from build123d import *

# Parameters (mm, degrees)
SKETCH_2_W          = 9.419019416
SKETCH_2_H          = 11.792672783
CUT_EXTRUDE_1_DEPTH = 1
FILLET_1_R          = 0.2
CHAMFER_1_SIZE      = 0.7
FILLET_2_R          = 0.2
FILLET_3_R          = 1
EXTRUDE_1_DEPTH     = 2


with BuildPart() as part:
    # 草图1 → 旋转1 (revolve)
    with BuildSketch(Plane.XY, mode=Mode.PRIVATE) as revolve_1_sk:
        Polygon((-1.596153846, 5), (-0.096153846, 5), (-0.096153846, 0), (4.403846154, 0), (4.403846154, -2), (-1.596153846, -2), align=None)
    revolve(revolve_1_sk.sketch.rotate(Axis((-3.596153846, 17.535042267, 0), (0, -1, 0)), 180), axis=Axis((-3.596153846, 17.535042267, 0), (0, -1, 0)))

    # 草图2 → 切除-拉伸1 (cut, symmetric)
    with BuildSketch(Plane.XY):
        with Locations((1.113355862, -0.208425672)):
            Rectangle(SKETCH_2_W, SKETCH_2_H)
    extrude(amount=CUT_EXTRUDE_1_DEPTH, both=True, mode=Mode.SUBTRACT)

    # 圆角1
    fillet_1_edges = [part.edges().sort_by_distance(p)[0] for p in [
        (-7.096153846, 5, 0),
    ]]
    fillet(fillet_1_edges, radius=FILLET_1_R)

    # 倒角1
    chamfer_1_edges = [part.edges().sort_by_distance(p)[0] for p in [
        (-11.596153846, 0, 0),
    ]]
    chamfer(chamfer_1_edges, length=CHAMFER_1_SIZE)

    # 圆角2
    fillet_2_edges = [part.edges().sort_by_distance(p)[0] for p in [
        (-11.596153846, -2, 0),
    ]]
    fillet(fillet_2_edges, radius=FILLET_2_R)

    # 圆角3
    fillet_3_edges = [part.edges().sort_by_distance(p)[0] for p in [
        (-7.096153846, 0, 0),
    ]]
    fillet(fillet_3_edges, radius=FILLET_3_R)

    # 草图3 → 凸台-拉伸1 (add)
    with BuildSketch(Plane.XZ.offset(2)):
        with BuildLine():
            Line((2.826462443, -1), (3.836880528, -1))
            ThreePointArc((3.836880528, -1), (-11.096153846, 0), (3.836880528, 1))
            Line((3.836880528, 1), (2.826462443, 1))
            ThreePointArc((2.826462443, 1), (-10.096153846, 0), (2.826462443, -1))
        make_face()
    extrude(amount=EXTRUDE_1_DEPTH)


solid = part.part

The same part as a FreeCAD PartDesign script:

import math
import FreeCAD as App
import Part
import Sketcher

V = App.Vector


def edges_at(feature, points):
    """Names of the edges that pass closest to the given points."""
    edges = feature.Shape.Edges
    near = lambda p: min(range(len(edges)), key=lambda i: edges[i].distToShape(Part.Vertex(*p))[0])
    return sorted({f"Edge{near(p) + 1}" for p in points})


def add_polygon(sketch, points):
    """Adds a closed chain of lines whose ends are joined by coincident constraints."""
    first, n = sketch.GeometryCount, len(points)
    for a, b in zip(points, points[1:] + points[:1]):
        sketch.addGeometry(Part.LineSegment(App.Vector(*a, 0), App.Vector(*b, 0)), False)
    for i in range(n):
        sketch.addConstraint(Sketcher.Constraint("Coincident", first + i, 2, first + (i + 1) % n, 1))

doc = App.newDocument("Part")
body = doc.addObject("PartDesign::Body", "Body")

# Sketch on XY plane
sketch1 = body.newObject("Sketcher::SketchObject", "Sketch")
sketch1.AttachmentSupport = (doc.getObject("XY_Plane"), [""])
sketch1.MapMode = "FlatFace"
add_polygon(sketch1, [(-0.1, 5), (-1.6, 5), (-1.6, -2), (4.4, -2), (4.4, 0), (-0.1, 0)])  # lines 0-5
sketch1.addGeometry(Part.LineSegment(V(-3.6, 5, 0), V(-3.6, -2, 0)), True)  # axis
sketch1.addConstraint([
    Sketcher.Constraint("Horizontal", 0),
    Sketcher.Constraint("Vertical", 1),
    Sketcher.Constraint("Horizontal", 2),
    Sketcher.Constraint("Vertical", 3),
    Sketcher.Constraint("Horizontal", 4),
    Sketcher.Constraint("Vertical", 5),
    Sketcher.Constraint("Vertical", 6),
    Sketcher.Constraint("PointOnObject", 3, 2, -1),
    Sketcher.Constraint("Horizontal", 5, 2, 6, 1),
    Sketcher.Constraint("Horizontal", 2, 2, 6, 2),
    Sketcher.Constraint("DistanceX", 2, 1, 2, 2, 6.0),
    Sketcher.Constraint("DistanceY", 1, 2, 1, 1, 7.0),
    Sketcher.Constraint("DistanceY", 3, 1, 3, 2, 2.0),
    Sketcher.Constraint("DistanceX", 0, 2, 0, 1, 1.5),
    Sketcher.Constraint("DistanceX", 6, 1, 0, 2, 2.0),
    Sketcher.Constraint("DistanceX", 0, 2, -1, 1, 1.596154),
])
revolution = body.newObject("PartDesign::Revolution", "Revolution")
revolution.Profile = sketch1
revolution.ReferenceAxis = (sketch1, ["Axis0"])
revolution.Angle = 360

# Sketch on XY plane
sketch2 = body.newObject("Sketcher::SketchObject", "Sketch001")
sketch2.AttachmentSupport = (doc.getObject("XY_Plane"), [""])
sketch2.MapMode = "FlatFace"
add_polygon(sketch2, [(-4, 6), (-4, -6), (6, -6), (6, 6)])  # lines 0-3
sketch2.addConstraint([
    Sketcher.Constraint("Vertical", 0),
    Sketcher.Constraint("Horizontal", 1),
    Sketcher.Constraint("Vertical", 2),
    Sketcher.Constraint("Horizontal", 3),
    Sketcher.Constraint("DistanceX", 1, 1, 1, 2, 9.419019),
    Sketcher.Constraint("DistanceY", 0, 2, 0, 1, 11.792673),
    Sketcher.Constraint("DistanceY", -1, 1, 2, 2, 5.687911),
    Sketcher.Constraint("DistanceX", 0, 2, -1, 1, 3.596154),
])
pocket1 = body.newObject("PartDesign::Pocket", "Pocket")
pocket1.Profile = sketch2
pocket1.Length = 2
pocket1.Midplane = True
doc.recompute()

fillet = body.newObject("PartDesign::Fillet", "Fillet")
fillet.Base = (pocket1, edges_at(pocket1, [(-7.096, 5, 0)]))
fillet.Radius = 0.2
doc.recompute()

chamfer = body.newObject("PartDesign::Chamfer", "Chamfer")
chamfer.Base = (fillet, edges_at(fillet, [(-11.596, 0, 0)]))
chamfer.Size = 0.7
doc.recompute()

fillet2 = body.newObject("PartDesign::Fillet", "Fillet001")
fillet2.Base = (chamfer, edges_at(chamfer, [(-11.596, -2, 0)]))
fillet2.Radius = 0.2
doc.recompute()

fillet3 = body.newObject("PartDesign::Fillet", "Fillet002")
fillet3.Base = (fillet2, edges_at(fillet2, [(-7.096, 0, 0)]))
fillet3.Radius = 1

# Sketch on XZ plane
sketch3 = body.newObject("Sketcher::SketchObject", "Sketch002")
sketch3.AttachmentSupport = (doc.getObject("XZ_Plane"), [""])
sketch3.MapMode = "FlatFace"
sketch3.AttachmentOffset = App.Placement(V(0, 0, 2), App.Rotation())
sketch3.addGeometry([
    Part.LineSegment(V(3.8, -1, 0), V(2.8, -1, 0)),
    Part.ArcOfCircle(Part.Circle(V(-3.6, 0, 0), V(0, 0, 1), 6.5), math.radians(9), math.radians(351)),
    Part.LineSegment(V(2.8, 1, 0), V(3.8, 1, 0)),
    Part.ArcOfCircle(Part.Circle(V(-3.6, 0, 0), V(0, 0, 1), 7.5), math.radians(8), math.radians(352)),
], False)
sketch3.addConstraint([
    Sketcher.Constraint("Coincident", 0, 2, 1, 2),
    Sketcher.Constraint("Coincident", 1, 1, 2, 1),
    Sketcher.Constraint("Coincident", 2, 2, 3, 1),
    Sketcher.Constraint("Coincident", 3, 2, 0, 1),
    Sketcher.Constraint("Horizontal", 0),
    Sketcher.Constraint("Horizontal", 2),
    Sketcher.Constraint("Coincident", 3, 3, 1, 3),
    Sketcher.Constraint("Symmetric", 0, 2, 1, 1, -1),
    Sketcher.Constraint("Radius", 1, 6.5),
    Sketcher.Constraint("Radius", 3, 7.5),
    Sketcher.Constraint("DistanceY", 0, 2, -1, 1, 1.0),
    Sketcher.Constraint("DistanceX", -1, 1, 2, 2, 3.836881),
])
pad1 = body.newObject("PartDesign::Pad", "Pad")
pad1.Profile = sketch3
pad1.Length = 2

doc.recompute()
